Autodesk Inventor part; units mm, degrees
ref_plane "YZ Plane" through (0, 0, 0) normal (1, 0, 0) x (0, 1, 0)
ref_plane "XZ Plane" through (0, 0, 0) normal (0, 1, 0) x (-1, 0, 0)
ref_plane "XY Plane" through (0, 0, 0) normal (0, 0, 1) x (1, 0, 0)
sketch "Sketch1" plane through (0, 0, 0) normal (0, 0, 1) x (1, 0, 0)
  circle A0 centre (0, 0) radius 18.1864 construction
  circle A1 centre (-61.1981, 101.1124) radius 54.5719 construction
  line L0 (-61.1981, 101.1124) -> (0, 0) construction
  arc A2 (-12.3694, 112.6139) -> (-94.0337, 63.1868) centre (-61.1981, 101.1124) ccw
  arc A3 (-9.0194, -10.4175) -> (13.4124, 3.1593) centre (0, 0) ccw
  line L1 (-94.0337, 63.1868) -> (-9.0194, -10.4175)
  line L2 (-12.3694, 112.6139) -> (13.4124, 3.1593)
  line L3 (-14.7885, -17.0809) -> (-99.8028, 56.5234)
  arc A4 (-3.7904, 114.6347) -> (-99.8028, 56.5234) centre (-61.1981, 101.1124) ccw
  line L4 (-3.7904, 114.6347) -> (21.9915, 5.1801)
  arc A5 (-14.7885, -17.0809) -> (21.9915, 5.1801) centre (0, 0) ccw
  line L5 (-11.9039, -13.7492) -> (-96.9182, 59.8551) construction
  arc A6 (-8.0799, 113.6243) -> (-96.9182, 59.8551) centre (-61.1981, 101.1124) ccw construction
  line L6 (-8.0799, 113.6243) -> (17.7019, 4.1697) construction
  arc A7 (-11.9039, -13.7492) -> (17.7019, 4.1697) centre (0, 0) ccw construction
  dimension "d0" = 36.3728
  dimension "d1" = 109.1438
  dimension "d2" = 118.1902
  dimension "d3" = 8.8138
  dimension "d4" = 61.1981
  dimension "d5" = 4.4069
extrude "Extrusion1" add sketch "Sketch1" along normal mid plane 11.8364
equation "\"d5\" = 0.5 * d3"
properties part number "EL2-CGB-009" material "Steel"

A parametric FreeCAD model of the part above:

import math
import FreeCAD as App
import Part
import Sketcher
from FreeCAD import Vector
Q = App.Units.Quantity

doc = App.newDocument("Part")
body = doc.addObject("PartDesign::Body", "Body")

# Sketch on XY plane
sketch1 = body.newObject("Sketcher::SketchObject", "Sketch")
sketch1.AttachmentSupport = (doc.getObject("XY_Plane"), [""])
sketch1.MapMode = "FlatFace"
sketch1.addGeometry([
    Part.LineSegment(Vector(-99.8028, 56.5234, 0), Vector(-14.7885, -17.0809, 0)),  # 0
    Part.ArcOfCircle(Part.Circle(Vector(0, 0, 0), Vector(0, 0, 1), 22.593293), math.radians(-130.885739), math.radians(13.254416)),  # 1
    Part.LineSegment(Vector(21.9915, 5.1801, 0), Vector(-3.7904, 114.6347, 0)),  # 2
    Part.ArcOfCircle(Part.Circle(Vector(-61.1981, 101.1124, 0), Vector(0, 0, 1), 58.978781), math.radians(13.254332), math.radians(229.114321)),  # 3
    Part.ArcOfCircle(Part.Circle(Vector(-61.1981, 101.1124, 0), Vector(0, 0, 1), 50.164992), math.radians(13.2543), math.radians(229.114318)),  # 4
    Part.LineSegment(Vector(-12.3694, 112.6139, 0), Vector(13.4124, 3.1593, 0)),  # 5
    Part.ArcOfCircle(Part.Circle(Vector(0, 0, 0), Vector(0, 0, 1), 13.779473), math.radians(-130.885789), math.radians(13.254448)),  # 6
    Part.LineSegment(Vector(-9.0194, -10.4175, 0), Vector(-94.0337, 63.1868, 0)),  # 7
], False)
sketch1.addConstraint([
    Sketcher.Constraint("Tangent", 0, 2, 1, 1),
    Sketcher.Constraint("Tangent", 1, 2, 2, 1),
    Sketcher.Constraint("Tangent", 2, 2, 3, 1),
    Sketcher.Constraint("Tangent", 3, 2, 0, 1),
    Sketcher.Constraint("Tangent", 4, 1, 5, 1),
    Sketcher.Constraint("Tangent", 5, 2, 6, 2),
    Sketcher.Constraint("Tangent", 6, 1, 7, 1),
    Sketcher.Constraint("Tangent", 7, 2, 4, 2),
    Sketcher.Constraint("Coincident", 1, 3, -1, 1),
    Sketcher.Constraint("Coincident", 6, 3, -1, 1),
    Sketcher.Constraint("Coincident", 4, 3, 3, 3),
    Sketcher.Constraint("Parallel", 2, 5),
    Sketcher.Constraint("Radius", 3, Q("2.322 in")),
    Sketcher.Constraint("Radius", 4, Q("1.975 in")),
    Sketcher.Constraint("Radius", 1, Q("0.8895 in")),
    Sketcher.Constraint("DistanceX", 3, 3, -1, 1, Q("61.198 mm")),
    Sketcher.Constraint("DistanceY", -1, 1, 3, 3, Q("3.9808 in")),
])
pad1 = body.newObject("PartDesign::Pad", "Pad")
pad1.Profile = sketch1
pad1.Length = Q("0.466 in")
pad1.Midplane = True

doc.recompute()
